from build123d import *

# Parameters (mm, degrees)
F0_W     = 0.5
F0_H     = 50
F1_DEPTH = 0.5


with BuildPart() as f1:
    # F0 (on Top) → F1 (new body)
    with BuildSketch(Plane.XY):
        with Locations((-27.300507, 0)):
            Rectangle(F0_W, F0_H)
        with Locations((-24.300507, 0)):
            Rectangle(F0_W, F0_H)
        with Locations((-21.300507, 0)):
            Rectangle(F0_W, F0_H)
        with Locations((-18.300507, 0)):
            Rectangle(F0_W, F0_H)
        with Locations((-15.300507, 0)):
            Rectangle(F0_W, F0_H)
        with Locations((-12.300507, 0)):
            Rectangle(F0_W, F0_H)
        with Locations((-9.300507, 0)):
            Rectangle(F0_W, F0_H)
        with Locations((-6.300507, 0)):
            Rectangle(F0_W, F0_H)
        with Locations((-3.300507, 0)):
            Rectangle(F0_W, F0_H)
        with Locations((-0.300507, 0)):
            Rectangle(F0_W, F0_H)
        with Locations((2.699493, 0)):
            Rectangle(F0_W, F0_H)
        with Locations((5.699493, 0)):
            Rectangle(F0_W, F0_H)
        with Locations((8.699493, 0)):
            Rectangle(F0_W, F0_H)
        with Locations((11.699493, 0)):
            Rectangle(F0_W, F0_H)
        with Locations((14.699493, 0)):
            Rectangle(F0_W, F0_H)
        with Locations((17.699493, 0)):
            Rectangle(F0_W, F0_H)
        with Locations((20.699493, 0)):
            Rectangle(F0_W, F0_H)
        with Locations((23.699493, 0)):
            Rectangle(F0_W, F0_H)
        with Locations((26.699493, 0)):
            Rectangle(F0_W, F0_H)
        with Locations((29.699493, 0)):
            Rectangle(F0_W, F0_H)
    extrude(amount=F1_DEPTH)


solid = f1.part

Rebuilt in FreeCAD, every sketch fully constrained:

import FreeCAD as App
import Part
import Sketcher

doc = App.newDocument("Part")
body = doc.addObject("PartDesign::Body", "Body")
body.AllowCompound = True

sketch1 = body.newObject("Sketcher::SketchObject", "Sketch")
sketch1.AttachmentSupport = (doc.getObject("XY_Plane"), [""])
sketch1.MapMode = "FlatFace"
sketch1.addGeometry(Part.LineSegment(App.Vector(-27.55, 25, 0), App.Vector(-27.55, -25, 0)), False)
sketch1.addGeometry(Part.LineSegment(App.Vector(-27.55, -25, 0), App.Vector(-27.05, -25, 0)), False)
sketch1.addGeometry(Part.LineSegment(App.Vector(-27.05, -25, 0), App.Vector(-27.05, 25, 0)), False)
sketch1.addGeometry(Part.LineSegment(App.Vector(-27.05, 25, 0), App.Vector(-27.55, 25, 0)), False)
sketch1.addGeometry(Part.LineSegment(App.Vector(-24.55, 25, 0), App.Vector(-24.55, -25, 0)), False)
sketch1.addGeometry(Part.LineSegment(App.Vector(-24.55, -25, 0), App.Vector(-24.05, -25, 0)), False)
sketch1.addGeometry(Part.LineSegment(App.Vector(-24.05, -25, 0), App.Vector(-24.05, 25, 0)), False)
sketch1.addGeometry(Part.LineSegment(App.Vector(-24.05, 25, 0), App.Vector(-24.55, 25, 0)), False)
sketch1.addGeometry(Part.LineSegment(App.Vector(-21.55, 25, 0), App.Vector(-21.55, -25, 0)), False)
sketch1.addGeometry(Part.LineSegment(App.Vector(-21.55, -25, 0), App.Vector(-21.05, -25, 0)), False)
sketch1.addGeometry(Part.LineSegment(App.Vector(-21.05, -25, 0), App.Vector(-21.05, 25, 0)), False)
sketch1.addGeometry(Part.LineSegment(App.Vector(-21.05, 25, 0), App.Vector(-21.55, 25, 0)), False)
sketch1.addGeometry(Part.LineSegment(App.Vector(-18.55, 25, 0), App.Vector(-18.55, -25, 0)), False)
sketch1.addGeometry(Part.LineSegment(App.Vector(-18.55, -25, 0), App.Vector(-18.05, -25, 0)), False)
sketch1.addGeometry(Part.LineSegment(App.Vector(-18.05, -25, 0), App.Vector(-18.05, 25, 0)), False)
sketch1.addGeometry(Part.LineSegment(App.Vector(-18.05, 25, 0), App.Vector(-18.55, 25, 0)), False)
sketch1.addGeometry(Part.LineSegment(App.Vector(-15.55, 25, 0), App.Vector(-15.55, -25, 0)), False)
sketch1.addGeometry(Part.LineSegment(App.Vector(-15.55, -25, 0), App.Vector(-15.05, -25, 0)), False)
sketch1.addGeometry(Part.LineSegment(App.Vector(-15.05, -25, 0), App.Vector(-15.05, 25, 0)), False)
sketch1.addGeometry(Part.LineSegment(App.Vector(-15.05, 25, 0), App.Vector(-15.55, 25, 0)), False)
sketch1.addGeometry(Part.LineSegment(App.Vector(-12.55, 25, 0), App.Vector(-12.55, -25, 0)), False)
sketch1.addGeometry(Part.LineSegment(App.Vector(-12.55, -25, 0), App.Vector(-12.05, -25, 0)), False)
sketch1.addGeometry(Part.LineSegment(App.Vector(-12.05, -25, 0), App.Vector(-12.05, 25, 0)), False)
sketch1.addGeometry(Part.LineSegment(App.Vector(-12.05, 25, 0), App.Vector(-12.55, 25, 0)), False)
sketch1.addGeometry(Part.LineSegment(App.Vector(-9.55, 25, 0), App.Vector(-9.55, -25, 0)), False)
sketch1.addGeometry(Part.LineSegment(App.Vector(-9.55, -25, 0), App.Vector(-9.05, -25, 0)), False)
sketch1.addGeometry(Part.LineSegment(App.Vector(-9.05, -25, 0), App.Vector(-9.05, 25, 0)), False)
sketch1.addGeometry(Part.LineSegment(App.Vector(-9.05, 25, 0), App.Vector(-9.55, 25, 0)), False)
sketch1.addGeometry(Part.LineSegment(App.Vector(-6.55, 25, 0), App.Vector(-6.55, -25, 0)), False)
sketch1.addGeometry(Part.LineSegment(App.Vector(-6.55, -25, 0), App.Vector(-6.05, -25, 0)), False)
sketch1.addGeometry(Part.LineSegment(App.Vector(-6.05, -25, 0), App.Vector(-6.05, 25, 0)), False)
sketch1.addGeometry(Part.LineSegment(App.Vector(-6.05, 25, 0), App.Vector(-6.55, 25, 0)), False)
sketch1.addGeometry(Part.LineSegment(App.Vector(-3.55, 25, 0), App.Vector(-3.55, -25, 0)), False)
sketch1.addGeometry(Part.LineSegment(App.Vector(-3.55, -25, 0), App.Vector(-3.05, -25, 0)), False)
sketch1.addGeometry(Part.LineSegment(App.Vector(-3.05, -25, 0), App.Vector(-3.05, 25, 0)), False)
sketch1.addGeometry(Part.LineSegment(App.Vector(-3.05, 25, 0), App.Vector(-3.55, 25, 0)), False)
sketch1.addGeometry(Part.LineSegment(App.Vector(-0.55, 25, 0), App.Vector(-0.55, -25, 0)), False)
sketch1.addGeometry(Part.LineSegment(App.Vector(-0.55, -25, 0), App.Vector(-0.05, -25, 0)), False)
sketch1.addGeometry(Part.LineSegment(App.Vector(-0.05, -25, 0), App.Vector(-0.05, 25, 0)), False)
sketch1.addGeometry(Part.LineSegment(App.Vector(-0.05, 25, 0), App.Vector(-0.55, 25, 0)), False)
sketch1.addGeometry(Part.LineSegment(App.Vector(2.45, 25, 0), App.Vector(2.45, -25, 0)), False)
sketch1.addGeometry(Part.LineSegment(App.Vector(2.45, -25, 0), App.Vector(2.95, -25, 0)), False)
sketch1.addGeometry(Part.LineSegment(App.Vector(2.95, -25, 0), App.Vector(2.95, 25, 0)), False)
sketch1.addGeometry(Part.LineSegment(App.Vector(2.95, 25, 0), App.Vector(2.45, 25, 0)), False)
sketch1.addGeometry(Part.LineSegment(App.Vector(5.45, 25, 0), App.Vector(5.45, -25, 0)), False)
sketch1.addGeometry(Part.LineSegment(App.Vector(5.45, -25, 0), App.Vector(5.95, -25, 0)), False)
sketch1.addGeometry(Part.LineSegment(App.Vector(5.95, -25, 0), App.Vector(5.95, 25, 0)), False)
sketch1.addGeometry(Part.LineSegment(App.Vector(5.95, 25, 0), App.Vector(5.45, 25, 0)), False)
sketch1.addGeometry(Part.LineSegment(App.Vector(8.45, 25, 0), App.Vector(8.45, -25, 0)), False)
sketch1.addGeometry(Part.LineSegment(App.Vector(8.45, -25, 0), App.Vector(8.95, -25, 0)), False)
sketch1.addGeometry(Part.LineSegment(App.Vector(8.95, -25, 0), App.Vector(8.95, 25, 0)), False)
sketch1.addGeometry(Part.LineSegment(App.Vector(8.95, 25, 0), App.Vector(8.45, 25, 0)), False)
sketch1.addGeometry(Part.LineSegment(App.Vector(11.45, 25, 0), App.Vector(11.45, -25, 0)), False)
sketch1.addGeometry(Part.LineSegment(App.Vector(11.45, -25, 0), App.Vector(11.95, -25, 0)), False)
sketch1.addGeometry(Part.LineSegment(App.Vector(11.95, -25, 0), App.Vector(11.95, 25, 0)), False)
sketch1.addGeometry(Part.LineSegment(App.Vector(11.95, 25, 0), App.Vector(11.45, 25, 0)), False)
sketch1.addGeometry(Part.LineSegment(App.Vector(14.45, 25, 0), App.Vector(14.45, -25, 0)), False)
sketch1.addGeometry(Part.LineSegment(App.Vector(14.45, -25, 0), App.Vector(14.95, -25, 0)), False)
sketch1.addGeometry(Part.LineSegment(App.Vector(14.95, -25, 0), App.Vector(14.95, 25, 0)), False)
sketch1.addGeometry(Part.LineSegment(App.Vector(14.95, 25, 0), App.Vector(14.45, 25, 0)), False)
sketch1.addGeometry(Part.LineSegment(App.Vector(17.45, 25, 0), App.Vector(17.45, -25, 0)), False)
sketch1.addGeometry(Part.LineSegment(App.Vector(17.45, -25, 0), App.Vector(17.95, -25, 0)), False)
sketch1.addGeometry(Part.LineSegment(App.Vector(17.95, -25, 0), App.Vector(17.95, 25, 0)), False)
sketch1.addGeometry(Part.LineSegment(App.Vector(17.95, 25, 0), App.Vector(17.45, 25, 0)), False)
sketch1.addGeometry(Part.LineSegment(App.Vector(20.45, 25, 0), App.Vector(20.45, -25, 0)), False)
sketch1.addGeometry(Part.LineSegment(App.Vector(20.45, -25, 0), App.Vector(20.95, -25, 0)), False)
sketch1.addGeometry(Part.LineSegment(App.Vector(20.95, -25, 0), App.Vector(20.95, 25, 0)), False)
sketch1.addGeometry(Part.LineSegment(App.Vector(20.95, 25, 0), App.Vector(20.45, 25, 0)), False)
sketch1.addGeometry(Part.LineSegment(App.Vector(23.45, 25, 0), App.Vector(23.45, -25, 0)), False)
sketch1.addGeometry(Part.LineSegment(App.Vector(23.45, -25, 0), App.Vector(23.95, -25, 0)), False)
sketch1.addGeometry(Part.LineSegment(App.Vector(23.95, -25, 0), App.Vector(23.95, 25, 0)), False)
sketch1.addGeometry(Part.LineSegment(App.Vector(23.95, 25, 0), App.Vector(23.45, 25, 0)), False)
sketch1.addGeometry(Part.LineSegment(App.Vector(26.45, 25, 0), App.Vector(26.45, -25, 0)), False)
sketch1.addGeometry(Part.LineSegment(App.Vector(26.45, -25, 0), App.Vector(26.95, -25, 0)), False)
sketch1.addGeometry(Part.LineSegment(App.Vector(26.95, -25, 0), App.Vector(26.95, 25, 0)), False)
sketch1.addGeometry(Part.LineSegment(App.Vector(26.95, 25, 0), App.Vector(26.45, 25, 0)), False)
sketch1.addGeometry(Part.LineSegment(App.Vector(29.45, 25, 0), App.Vector(29.45, -25, 0)), False)
sketch1.addGeometry(Part.LineSegment(App.Vector(29.45, -25, 0), App.Vector(29.95, -25, 0)), False)
sketch1.addGeometry(Part.LineSegment(App.Vector(29.95, -25, 0), App.Vector(29.95, 25, 0)), False)
sketch1.addGeometry(Part.LineSegment(App.Vector(29.95, 25, 0), App.Vector(29.45, 25, 0)), False)
sketch1.addConstraint(Sketcher.Constraint("Coincident", 0, 2, 1, 1))
sketch1.addConstraint(Sketcher.Constraint("Coincident", 1, 2, 2, 1))
sketch1.addConstraint(Sketcher.Constraint("Coincident", 2, 2, 3, 1))
sketch1.addConstraint(Sketcher.Constraint("Coincident", 3, 2, 0, 1))
sketch1.addConstraint(Sketcher.Constraint("Coincident", 4, 2, 5, 1))
sketch1.addConstraint(Sketcher.Constraint("Coincident", 5, 2, 6, 1))
sketch1.addConstraint(Sketcher.Constraint("Coincident", 6, 2, 7, 1))
sketch1.addConstraint(Sketcher.Constraint("Coincident", 7, 2, 4, 1))
sketch1.addConstraint(Sketcher.Constraint("Coincident", 8, 2, 9, 1))
sketch1.addConstraint(Sketcher.Constraint("Coincident", 9, 2, 10, 1))
sketch1.addConstraint(Sketcher.Constraint("Coincident", 10, 2, 11, 1))
sketch1.addConstraint(Sketcher.Constraint("Coincident", 11, 2, 8, 1))
sketch1.addConstraint(Sketcher.Constraint("Coincident", 12, 2, 13, 1))
sketch1.addConstraint(Sketcher.Constraint("Coincident", 13, 2, 14, 1))
sketch1.addConstraint(Sketcher.Constraint("Coincident", 14, 2, 15, 1))
sketch1.addConstraint(Sketcher.Constraint("Coincident", 15, 2, 12, 1))
sketch1.addConstraint(Sketcher.Constraint("Coincident", 16, 2, 17, 1))
sketch1.addConstraint(Sketcher.Constraint("Coincident", 17, 2, 18, 1))
sketch1.addConstraint(Sketcher.Constraint("Coincident", 18, 2, 19, 1))
sketch1.addConstraint(Sketcher.Constraint("Coincident", 19, 2, 16, 1))
sketch1.addConstraint(Sketcher.Constraint("Coincident", 20, 2, 21, 1))
sketch1.addConstraint(Sketcher.Constraint("Coincident", 21, 2, 22, 1))
sketch1.addConstraint(Sketcher.Constraint("Coincident", 22, 2, 23, 1))
sketch1.addConstraint(Sketcher.Constraint("Coincident", 23, 2, 20, 1))
sketch1.addConstraint(Sketcher.Constraint("Coincident", 24, 2, 25, 1))
sketch1.addConstraint(Sketcher.Constraint("Coincident", 25, 2, 26, 1))
sketch1.addConstraint(Sketcher.Constraint("Coincident", 26, 2, 27, 1))
sketch1.addConstraint(Sketcher.Constraint("Coincident", 27, 2, 24, 1))
sketch1.addConstraint(Sketcher.Constraint("Coincident", 28, 2, 29, 1))
sketch1.addConstraint(Sketcher.Constraint("Coincident", 29, 2, 30, 1))
sketch1.addConstraint(Sketcher.Constraint("Coincident", 30, 2, 31, 1))
sketch1.addConstraint(Sketcher.Constraint("Coincident", 31, 2, 28, 1))
sketch1.addConstraint(Sketcher.Constraint("Coincident", 32, 2, 33, 1))
sketch1.addConstraint(Sketcher.Constraint("Coincident", 33, 2, 34, 1))
sketch1.addConstraint(Sketcher.Constraint("Coincident", 34, 2, 35, 1))
sketch1.addConstraint(Sketcher.Constraint("Coincident", 35, 2, 32, 1))
sketch1.addConstraint(Sketcher.Constraint("Coincident", 36, 2, 37, 1))
sketch1.addConstraint(Sketcher.Constraint("Coincident", 37, 2, 38, 1))
sketch1.addConstraint(Sketcher.Constraint("Coincident", 38, 2, 39, 1))
sketch1.addConstraint(Sketcher.Constraint("Coincident", 39, 2, 36, 1))
sketch1.addConstraint(Sketcher.Constraint("Coincident", 40, 2, 41, 1))
sketch1.addConstraint(Sketcher.Constraint("Coincident", 41, 2, 42, 1))
sketch1.addConstraint(Sketcher.Constraint("Coincident", 42, 2, 43, 1))
sketch1.addConstraint(Sketcher.Constraint("Coincident", 43, 2, 40, 1))
sketch1.addConstraint(Sketcher.Constraint("Coincident", 44, 2, 45, 1))
sketch1.addConstraint(Sketcher.Constraint("Coincident", 45, 2, 46, 1))
sketch1.addConstraint(Sketcher.Constraint("Coincident", 46, 2, 47, 1))
sketch1.addConstraint(Sketcher.Constraint("Coincident", 47, 2, 44, 1))
sketch1.addConstraint(Sketcher.Constraint("Coincident", 48, 2, 49, 1))
sketch1.addConstraint(Sketcher.Constraint("Coincident", 49, 2, 50, 1))
sketch1.addConstraint(Sketcher.Constraint("Coincident", 50, 2, 51, 1))
sketch1.addConstraint(Sketcher.Constraint("Coincident", 51, 2, 48, 1))
sketch1.addConstraint(Sketcher.Constraint("Coincident", 52, 2, 53, 1))
sketch1.addConstraint(Sketcher.Constraint("Coincident", 53, 2, 54, 1))
sketch1.addConstraint(Sketcher.Constraint("Coincident", 54, 2, 55, 1))
sketch1.addConstraint(Sketcher.Constraint("Coincident", 55, 2, 52, 1))
sketch1.addConstraint(Sketcher.Constraint("Coincident", 56, 2, 57, 1))
sketch1.addConstraint(Sketcher.Constraint("Coincident", 57, 2, 58, 1))
sketch1.addConstraint(Sketcher.Constraint("Coincident", 58, 2, 59, 1))
sketch1.addConstraint(Sketcher.Constraint("Coincident", 59, 2, 56, 1))
sketch1.addConstraint(Sketcher.Constraint("Coincident", 60, 2, 61, 1))
sketch1.addConstraint(Sketcher.Constraint("Coincident", 61, 2, 62, 1))
sketch1.addConstraint(Sketcher.Constraint("Coincident", 62, 2, 63, 1))
sketch1.addConstraint(Sketcher.Constraint("Coincident", 63, 2, 60, 1))
sketch1.addConstraint(Sketcher.Constraint("Coincident", 64, 2, 65, 1))
sketch1.addConstraint(Sketcher.Constraint("Coincident", 65, 2, 66, 1))
sketch1.addConstraint(Sketcher.Constraint("Coincident", 66, 2, 67, 1))
sketch1.addConstraint(Sketcher.Constraint("Coincident", 67, 2, 64, 1))
sketch1.addConstraint(Sketcher.Constraint("Coincident", 68, 2, 69, 1))
sketch1.addConstraint(Sketcher.Constraint("Coincident", 69, 2, 70, 1))
sketch1.addConstraint(Sketcher.Constraint("Coincident", 70, 2, 71, 1))
sketch1.addConstraint(Sketcher.Constraint("Coincident", 71, 2, 68, 1))
sketch1.addConstraint(Sketcher.Constraint("Coincident", 72, 2, 73, 1))
sketch1.addConstraint(Sketcher.Constraint("Coincident", 73, 2, 74, 1))
sketch1.addConstraint(Sketcher.Constraint("Coincident", 74, 2, 75, 1))
sketch1.addConstraint(Sketcher.Constraint("Coincident", 75, 2, 72, 1))
sketch1.addConstraint(Sketcher.Constraint("Coincident", 76, 2, 77, 1))
sketch1.addConstraint(Sketcher.Constraint("Coincident", 77, 2, 78, 1))
sketch1.addConstraint(Sketcher.Constraint("Coincident", 78, 2, 79, 1))
sketch1.addConstraint(Sketcher.Constraint("Coincident", 79, 2, 76, 1))
sketch1.addConstraint(Sketcher.Constraint("Vertical", 0))
sketch1.addConstraint(Sketcher.Constraint("Horizontal", 1))
sketch1.addConstraint(Sketcher.Constraint("Vertical", 2))
sketch1.addConstraint(Sketcher.Constraint("Horizontal", 3))
sketch1.addConstraint(Sketcher.Constraint("Vertical", 4))
sketch1.addConstraint(Sketcher.Constraint("Horizontal", 5))
sketch1.addConstraint(Sketcher.Constraint("Vertical", 6))
sketch1.addConstraint(Sketcher.Constraint("Horizontal", 7))
sketch1.addConstraint(Sketcher.Constraint("Vertical", 8))
sketch1.addConstraint(Sketcher.Constraint("Horizontal", 9))
sketch1.addConstraint(Sketcher.Constraint("Vertical", 10))
sketch1.addConstraint(Sketcher.Constraint("Horizontal", 11))
sketch1.addConstraint(Sketcher.Constraint("Vertical", 12))
sketch1.addConstraint(Sketcher.Constraint("Horizontal", 13))
sketch1.addConstraint(Sketcher.Constraint("Vertical", 14))
sketch1.addConstraint(Sketcher.Constraint("Horizontal", 15))
sketch1.addConstraint(Sketcher.Constraint("Vertical", 16))
sketch1.addConstraint(Sketcher.Constraint("Horizontal", 17))
sketch1.addConstraint(Sketcher.Constraint("Vertical", 18))
sketch1.addConstraint(Sketcher.Constraint("Horizontal", 19))
sketch1.addConstraint(Sketcher.Constraint("Vertical", 20))
sketch1.addConstraint(Sketcher.Constraint("Horizontal", 21))
sketch1.addConstraint(Sketcher.Constraint("Vertical", 22))
sketch1.addConstraint(Sketcher.Constraint("Horizontal", 23))
sketch1.addConstraint(Sketcher.Constraint("Vertical", 24))
sketch1.addConstraint(Sketcher.Constraint("Horizontal", 25))
sketch1.addConstraint(Sketcher.Constraint("Vertical", 26))
sketch1.addConstraint(Sketcher.Constraint("Horizontal", 27))
sketch1.addConstraint(Sketcher.Constraint("Vertical", 28))
sketch1.addConstraint(Sketcher.Constraint("Horizontal", 29))
sketch1.addConstraint(Sketcher.Constraint("Vertical", 30))
sketch1.addConstraint(Sketcher.Constraint("Horizontal", 31))
sketch1.addConstraint(Sketcher.Constraint("Vertical", 32))
sketch1.addConstraint(Sketcher.Constraint("Horizontal", 33))
sketch1.addConstraint(Sketcher.Constraint("Vertical", 34))
sketch1.addConstraint(Sketcher.Constraint("Horizontal", 35))
sketch1.addConstraint(Sketcher.Constraint("Vertical", 36))
sketch1.addConstraint(Sketcher.Constraint("Horizontal", 37))
sketch1.addConstraint(Sketcher.Constraint("Vertical", 38))
sketch1.addConstraint(Sketcher.Constraint("Horizontal", 39))
sketch1.addConstraint(Sketcher.Constraint("Vertical", 40))
sketch1.addConstraint(Sketcher.Constraint("Horizontal", 41))
sketch1.addConstraint(Sketcher.Constraint("Vertical", 42))
sketch1.addConstraint(Sketcher.Constraint("Horizontal", 43))
sketch1.addConstraint(Sketcher.Constraint("Vertical", 44))
sketch1.addConstraint(Sketcher.Constraint("Horizontal", 45))
sketch1.addConstraint(Sketcher.Constraint("Vertical", 46))
sketch1.addConstraint(Sketcher.Constraint("Horizontal", 47))
sketch1.addConstraint(Sketcher.Constraint("Vertical", 48))
sketch1.addConstraint(Sketcher.Constraint("Horizontal", 49))
sketch1.addConstraint(Sketcher.Constraint("Vertical", 50))
sketch1.addConstraint(Sketcher.Constraint("Horizontal", 51))
sketch1.addConstraint(Sketcher.Constraint("Vertical", 52))
sketch1.addConstraint(Sketcher.Constraint("Horizontal", 53))
sketch1.addConstraint(Sketcher.Constraint("Vertical", 54))
sketch1.addConstraint(Sketcher.Constraint("Horizontal", 55))
sketch1.addConstraint(Sketcher.Constraint("Vertical", 56))
sketch1.addConstraint(Sketcher.Constraint("Horizontal", 57))
sketch1.addConstraint(Sketcher.Constraint("Vertical", 58))
sketch1.addConstraint(Sketcher.Constraint("Horizontal", 59))
sketch1.addConstraint(Sketcher.Constraint("Vertical", 60))
sketch1.addConstraint(Sketcher.Constraint("Horizontal", 61))
sketch1.addConstraint(Sketcher.Constraint("Vertical", 62))
sketch1.addConstraint(Sketcher.Constraint("Horizontal", 63))
sketch1.addConstraint(Sketcher.Constraint("Vertical", 64))
sketch1.addConstraint(Sketcher.Constraint("Horizontal", 65))
sketch1.addConstraint(Sketcher.Constraint("Vertical", 66))
sketch1.addConstraint(Sketcher.Constraint("Horizontal", 67))
sketch1.addConstraint(Sketcher.Constraint("Vertical", 68))
sketch1.addConstraint(Sketcher.Constraint("Horizontal", 69))
sketch1.addConstraint(Sketcher.Constraint("Vertical", 70))
sketch1.addConstraint(Sketcher.Constraint("Horizontal", 71))
sketch1.addConstraint(Sketcher.Constraint("Vertical", 72))
sketch1.addConstraint(Sketcher.Constraint("Horizontal", 73))
sketch1.addConstraint(Sketcher.Constraint("Vertical", 74))
sketch1.addConstraint(Sketcher.Constraint("Horizontal", 75))
sketch1.addConstraint(Sketcher.Constraint("Vertical", 76))
sketch1.addConstraint(Sketcher.Constraint("Horizontal", 77))
sketch1.addConstraint(Sketcher.Constraint("Vertical", 78))
sketch1.addConstraint(Sketcher.Constraint("Horizontal", 79))
sketch1.addConstraint(Sketcher.Constraint("Horizontal", 1, 2, 4, 2))
sketch1.addConstraint(Sketcher.Constraint("Horizontal", 3, 2, 6, 2))
sketch1.addConstraint(Sketcher.Constraint("Horizontal", 5, 2, 8, 2))
sketch1.addConstraint(Sketcher.Constraint("Horizontal", 7, 2, 10, 2))
sketch1.addConstraint(Sketcher.Constraint("Horizontal", 9, 2, 12, 2))
sketch1.addConstraint(Sketcher.Constraint("Horizontal", 11, 2, 14, 2))
sketch1.addConstraint(Sketcher.Constraint("Horizontal", 13, 2, 16, 2))
sketch1.addConstraint(Sketcher.Constraint("Horizontal", 15, 2, 18, 2))
sketch1.addConstraint(Sketcher.Constraint("Horizontal", 17, 2, 20, 2))
sketch1.addConstraint(Sketcher.Constraint("Horizontal", 19, 2, 22, 2))
sketch1.addConstraint(Sketcher.Constraint("Horizontal", 21, 2, 24, 2))
sketch1.addConstraint(Sketcher.Constraint("Horizontal", 23, 2, 26, 2))
sketch1.addConstraint(Sketcher.Constraint("Horizontal", 25, 2, 28, 2))
sketch1.addConstraint(Sketcher.Constraint("Horizontal", 27, 2, 30, 2))
sketch1.addConstraint(Sketcher.Constraint("Horizontal", 29, 2, 32, 2))
sketch1.addConstraint(Sketcher.Constraint("Horizontal", 31, 2, 34, 2))
sketch1.addConstraint(Sketcher.Constraint("Horizontal", 33, 2, 36, 2))
sketch1.addConstraint(Sketcher.Constraint("Horizontal", 35, 2, 38, 2))
sketch1.addConstraint(Sketcher.Constraint("Horizontal", 37, 2, 40, 2))
sketch1.addConstraint(Sketcher.Constraint("Horizontal", 39, 2, 42, 2))
sketch1.addConstraint(Sketcher.Constraint("Horizontal", 41, 2, 44, 2))
sketch1.addConstraint(Sketcher.Constraint("Horizontal", 43, 2, 46, 2))
sketch1.addConstraint(Sketcher.Constraint("Horizontal", 45, 2, 48, 2))
sketch1.addConstraint(Sketcher.Constraint("Horizontal", 47, 2, 50, 2))
sketch1.addConstraint(Sketcher.Constraint("Horizontal", 49, 2, 52, 2))
sketch1.addConstraint(Sketcher.Constraint("Horizontal", 51, 2, 54, 2))
sketch1.addConstraint(Sketcher.Constraint("Horizontal", 53, 2, 56, 2))
sketch1.addConstraint(Sketcher.Constraint("Horizontal", 55, 2, 58, 2))
sketch1.addConstraint(Sketcher.Constraint("Horizontal", 57, 2, 60, 2))
sketch1.addConstraint(Sketcher.Constraint("Horizontal", 59, 2, 62, 2))
sketch1.addConstraint(Sketcher.Constraint("Horizontal", 61, 2, 64, 2))
sketch1.addConstraint(Sketcher.Constraint("Horizontal", 63, 2, 66, 2))
sketch1.addConstraint(Sketcher.Constraint("Horizontal", 65, 2, 68, 2))
sketch1.addConstraint(Sketcher.Constraint("Horizontal", 67, 2, 70, 2))
sketch1.addConstraint(Sketcher.Constraint("Horizontal", 69, 2, 72, 2))
sketch1.addConstraint(Sketcher.Constraint("Horizontal", 71, 2, 74, 2))
sketch1.addConstraint(Sketcher.Constraint("Horizontal", 73, 2, 76, 2))
sketch1.addConstraint(Sketcher.Constraint("Horizontal", 75, 2, 78, 2))
sketch1.addConstraint(Sketcher.Constraint("Equal", 3, 5))
sketch1.addConstraint(Sketcher.Constraint("Equal", 7, 9))
sketch1.addConstraint(Sketcher.Constraint("Equal", 11, 13))
sketch1.addConstraint(Sketcher.Constraint("Equal", 15, 17))
sketch1.addConstraint(Sketcher.Constraint("Equal", 19, 21))
sketch1.addConstraint(Sketcher.Constraint("Equal", 23, 25))
sketch1.addConstraint(Sketcher.Constraint("Equal", 27, 29))
sketch1.addConstraint(Sketcher.Constraint("Equal", 31, 33))
sketch1.addConstraint(Sketcher.Constraint("Equal", 35, 37))
sketch1.addConstraint(Sketcher.Constraint("Equal", 39, 41))
sketch1.addConstraint(Sketcher.Constraint("Equal", 43, 45))
sketch1.addConstraint(Sketcher.Constraint("Equal", 47, 49))
sketch1.addConstraint(Sketcher.Constraint("Equal", 51, 53))
sketch1.addConstraint(Sketcher.Constraint("Equal", 55, 57))
sketch1.addConstraint(Sketcher.Constraint("Equal", 59, 61))
sketch1.addConstraint(Sketcher.Constraint("Equal", 63, 65))
sketch1.addConstraint(Sketcher.Constraint("Equal", 67, 69))
sketch1.addConstraint(Sketcher.Constraint("Equal", 71, 73))
sketch1.addConstraint(Sketcher.Constraint("Equal", 75, 77))
sketch1.addConstraint(Sketcher.Constraint("DistanceY", 0, 2, 0, 1, 50.0))
sketch1.addConstraint(Sketcher.Constraint("DistanceX", 1, 1, 1, 2, 0.5))
sketch1.addConstraint(Sketcher.Constraint("DistanceY", 0, 2, -1, 1, 25.0))
sketch1.addConstraint(Sketcher.Constraint("DistanceX", 0, 2, -1, 1, 27.550507))
sketch1.addConstraint(Sketcher.Constraint("DistanceX", 4, 2, -1, 1, 24.550507))
sketch1.addConstraint(Sketcher.Constraint("DistanceX", 8, 2, -1, 1, 21.550507))
sketch1.addConstraint(Sketcher.Constraint("DistanceX", 12, 2, -1, 1, 18.550507))
sketch1.addConstraint(Sketcher.Constraint("DistanceX", 16, 2, -1, 1, 15.550507))
sketch1.addConstraint(Sketcher.Constraint("DistanceX", 20, 2, -1, 1, 12.550507))
sketch1.addConstraint(Sketcher.Constraint("DistanceX", 24, 2, -1, 1, 9.550507))
sketch1.addConstraint(Sketcher.Constraint("DistanceX", 28, 2, -1, 1, 6.550507))
sketch1.addConstraint(Sketcher.Constraint("DistanceX", 32, 2, -1, 1, 3.550507))
sketch1.addConstraint(Sketcher.Constraint("DistanceX", 36, 2, -1, 1, 0.550507))
sketch1.addConstraint(Sketcher.Constraint("DistanceX", -1, 1, 40, 2, 2.449493))
sketch1.addConstraint(Sketcher.Constraint("DistanceX", -1, 1, 44, 2, 5.449493))
sketch1.addConstraint(Sketcher.Constraint("DistanceX", -1, 1, 48, 2, 8.449493))
sketch1.addConstraint(Sketcher.Constraint("DistanceX", -1, 1, 52, 2, 11.449493))
sketch1.addConstraint(Sketcher.Constraint("DistanceX", -1, 1, 56, 2, 14.449493))
sketch1.addConstraint(Sketcher.Constraint("DistanceX", -1, 1, 60, 2, 17.449493))
sketch1.addConstraint(Sketcher.Constraint("DistanceX", -1, 1, 64, 2, 20.449493))
sketch1.addConstraint(Sketcher.Constraint("DistanceX", -1, 1, 68, 2, 23.449493))
sketch1.addConstraint(Sketcher.Constraint("DistanceX", -1, 1, 72, 2, 26.449493))
sketch1.addConstraint(Sketcher.Constraint("DistanceX", -1, 1, 76, 2, 29.449493))
pad1 = body.newObject("PartDesign::Pad", "Pad")
pad1.Profile = sketch1
pad1.Length = 0.5

doc.recompute()
